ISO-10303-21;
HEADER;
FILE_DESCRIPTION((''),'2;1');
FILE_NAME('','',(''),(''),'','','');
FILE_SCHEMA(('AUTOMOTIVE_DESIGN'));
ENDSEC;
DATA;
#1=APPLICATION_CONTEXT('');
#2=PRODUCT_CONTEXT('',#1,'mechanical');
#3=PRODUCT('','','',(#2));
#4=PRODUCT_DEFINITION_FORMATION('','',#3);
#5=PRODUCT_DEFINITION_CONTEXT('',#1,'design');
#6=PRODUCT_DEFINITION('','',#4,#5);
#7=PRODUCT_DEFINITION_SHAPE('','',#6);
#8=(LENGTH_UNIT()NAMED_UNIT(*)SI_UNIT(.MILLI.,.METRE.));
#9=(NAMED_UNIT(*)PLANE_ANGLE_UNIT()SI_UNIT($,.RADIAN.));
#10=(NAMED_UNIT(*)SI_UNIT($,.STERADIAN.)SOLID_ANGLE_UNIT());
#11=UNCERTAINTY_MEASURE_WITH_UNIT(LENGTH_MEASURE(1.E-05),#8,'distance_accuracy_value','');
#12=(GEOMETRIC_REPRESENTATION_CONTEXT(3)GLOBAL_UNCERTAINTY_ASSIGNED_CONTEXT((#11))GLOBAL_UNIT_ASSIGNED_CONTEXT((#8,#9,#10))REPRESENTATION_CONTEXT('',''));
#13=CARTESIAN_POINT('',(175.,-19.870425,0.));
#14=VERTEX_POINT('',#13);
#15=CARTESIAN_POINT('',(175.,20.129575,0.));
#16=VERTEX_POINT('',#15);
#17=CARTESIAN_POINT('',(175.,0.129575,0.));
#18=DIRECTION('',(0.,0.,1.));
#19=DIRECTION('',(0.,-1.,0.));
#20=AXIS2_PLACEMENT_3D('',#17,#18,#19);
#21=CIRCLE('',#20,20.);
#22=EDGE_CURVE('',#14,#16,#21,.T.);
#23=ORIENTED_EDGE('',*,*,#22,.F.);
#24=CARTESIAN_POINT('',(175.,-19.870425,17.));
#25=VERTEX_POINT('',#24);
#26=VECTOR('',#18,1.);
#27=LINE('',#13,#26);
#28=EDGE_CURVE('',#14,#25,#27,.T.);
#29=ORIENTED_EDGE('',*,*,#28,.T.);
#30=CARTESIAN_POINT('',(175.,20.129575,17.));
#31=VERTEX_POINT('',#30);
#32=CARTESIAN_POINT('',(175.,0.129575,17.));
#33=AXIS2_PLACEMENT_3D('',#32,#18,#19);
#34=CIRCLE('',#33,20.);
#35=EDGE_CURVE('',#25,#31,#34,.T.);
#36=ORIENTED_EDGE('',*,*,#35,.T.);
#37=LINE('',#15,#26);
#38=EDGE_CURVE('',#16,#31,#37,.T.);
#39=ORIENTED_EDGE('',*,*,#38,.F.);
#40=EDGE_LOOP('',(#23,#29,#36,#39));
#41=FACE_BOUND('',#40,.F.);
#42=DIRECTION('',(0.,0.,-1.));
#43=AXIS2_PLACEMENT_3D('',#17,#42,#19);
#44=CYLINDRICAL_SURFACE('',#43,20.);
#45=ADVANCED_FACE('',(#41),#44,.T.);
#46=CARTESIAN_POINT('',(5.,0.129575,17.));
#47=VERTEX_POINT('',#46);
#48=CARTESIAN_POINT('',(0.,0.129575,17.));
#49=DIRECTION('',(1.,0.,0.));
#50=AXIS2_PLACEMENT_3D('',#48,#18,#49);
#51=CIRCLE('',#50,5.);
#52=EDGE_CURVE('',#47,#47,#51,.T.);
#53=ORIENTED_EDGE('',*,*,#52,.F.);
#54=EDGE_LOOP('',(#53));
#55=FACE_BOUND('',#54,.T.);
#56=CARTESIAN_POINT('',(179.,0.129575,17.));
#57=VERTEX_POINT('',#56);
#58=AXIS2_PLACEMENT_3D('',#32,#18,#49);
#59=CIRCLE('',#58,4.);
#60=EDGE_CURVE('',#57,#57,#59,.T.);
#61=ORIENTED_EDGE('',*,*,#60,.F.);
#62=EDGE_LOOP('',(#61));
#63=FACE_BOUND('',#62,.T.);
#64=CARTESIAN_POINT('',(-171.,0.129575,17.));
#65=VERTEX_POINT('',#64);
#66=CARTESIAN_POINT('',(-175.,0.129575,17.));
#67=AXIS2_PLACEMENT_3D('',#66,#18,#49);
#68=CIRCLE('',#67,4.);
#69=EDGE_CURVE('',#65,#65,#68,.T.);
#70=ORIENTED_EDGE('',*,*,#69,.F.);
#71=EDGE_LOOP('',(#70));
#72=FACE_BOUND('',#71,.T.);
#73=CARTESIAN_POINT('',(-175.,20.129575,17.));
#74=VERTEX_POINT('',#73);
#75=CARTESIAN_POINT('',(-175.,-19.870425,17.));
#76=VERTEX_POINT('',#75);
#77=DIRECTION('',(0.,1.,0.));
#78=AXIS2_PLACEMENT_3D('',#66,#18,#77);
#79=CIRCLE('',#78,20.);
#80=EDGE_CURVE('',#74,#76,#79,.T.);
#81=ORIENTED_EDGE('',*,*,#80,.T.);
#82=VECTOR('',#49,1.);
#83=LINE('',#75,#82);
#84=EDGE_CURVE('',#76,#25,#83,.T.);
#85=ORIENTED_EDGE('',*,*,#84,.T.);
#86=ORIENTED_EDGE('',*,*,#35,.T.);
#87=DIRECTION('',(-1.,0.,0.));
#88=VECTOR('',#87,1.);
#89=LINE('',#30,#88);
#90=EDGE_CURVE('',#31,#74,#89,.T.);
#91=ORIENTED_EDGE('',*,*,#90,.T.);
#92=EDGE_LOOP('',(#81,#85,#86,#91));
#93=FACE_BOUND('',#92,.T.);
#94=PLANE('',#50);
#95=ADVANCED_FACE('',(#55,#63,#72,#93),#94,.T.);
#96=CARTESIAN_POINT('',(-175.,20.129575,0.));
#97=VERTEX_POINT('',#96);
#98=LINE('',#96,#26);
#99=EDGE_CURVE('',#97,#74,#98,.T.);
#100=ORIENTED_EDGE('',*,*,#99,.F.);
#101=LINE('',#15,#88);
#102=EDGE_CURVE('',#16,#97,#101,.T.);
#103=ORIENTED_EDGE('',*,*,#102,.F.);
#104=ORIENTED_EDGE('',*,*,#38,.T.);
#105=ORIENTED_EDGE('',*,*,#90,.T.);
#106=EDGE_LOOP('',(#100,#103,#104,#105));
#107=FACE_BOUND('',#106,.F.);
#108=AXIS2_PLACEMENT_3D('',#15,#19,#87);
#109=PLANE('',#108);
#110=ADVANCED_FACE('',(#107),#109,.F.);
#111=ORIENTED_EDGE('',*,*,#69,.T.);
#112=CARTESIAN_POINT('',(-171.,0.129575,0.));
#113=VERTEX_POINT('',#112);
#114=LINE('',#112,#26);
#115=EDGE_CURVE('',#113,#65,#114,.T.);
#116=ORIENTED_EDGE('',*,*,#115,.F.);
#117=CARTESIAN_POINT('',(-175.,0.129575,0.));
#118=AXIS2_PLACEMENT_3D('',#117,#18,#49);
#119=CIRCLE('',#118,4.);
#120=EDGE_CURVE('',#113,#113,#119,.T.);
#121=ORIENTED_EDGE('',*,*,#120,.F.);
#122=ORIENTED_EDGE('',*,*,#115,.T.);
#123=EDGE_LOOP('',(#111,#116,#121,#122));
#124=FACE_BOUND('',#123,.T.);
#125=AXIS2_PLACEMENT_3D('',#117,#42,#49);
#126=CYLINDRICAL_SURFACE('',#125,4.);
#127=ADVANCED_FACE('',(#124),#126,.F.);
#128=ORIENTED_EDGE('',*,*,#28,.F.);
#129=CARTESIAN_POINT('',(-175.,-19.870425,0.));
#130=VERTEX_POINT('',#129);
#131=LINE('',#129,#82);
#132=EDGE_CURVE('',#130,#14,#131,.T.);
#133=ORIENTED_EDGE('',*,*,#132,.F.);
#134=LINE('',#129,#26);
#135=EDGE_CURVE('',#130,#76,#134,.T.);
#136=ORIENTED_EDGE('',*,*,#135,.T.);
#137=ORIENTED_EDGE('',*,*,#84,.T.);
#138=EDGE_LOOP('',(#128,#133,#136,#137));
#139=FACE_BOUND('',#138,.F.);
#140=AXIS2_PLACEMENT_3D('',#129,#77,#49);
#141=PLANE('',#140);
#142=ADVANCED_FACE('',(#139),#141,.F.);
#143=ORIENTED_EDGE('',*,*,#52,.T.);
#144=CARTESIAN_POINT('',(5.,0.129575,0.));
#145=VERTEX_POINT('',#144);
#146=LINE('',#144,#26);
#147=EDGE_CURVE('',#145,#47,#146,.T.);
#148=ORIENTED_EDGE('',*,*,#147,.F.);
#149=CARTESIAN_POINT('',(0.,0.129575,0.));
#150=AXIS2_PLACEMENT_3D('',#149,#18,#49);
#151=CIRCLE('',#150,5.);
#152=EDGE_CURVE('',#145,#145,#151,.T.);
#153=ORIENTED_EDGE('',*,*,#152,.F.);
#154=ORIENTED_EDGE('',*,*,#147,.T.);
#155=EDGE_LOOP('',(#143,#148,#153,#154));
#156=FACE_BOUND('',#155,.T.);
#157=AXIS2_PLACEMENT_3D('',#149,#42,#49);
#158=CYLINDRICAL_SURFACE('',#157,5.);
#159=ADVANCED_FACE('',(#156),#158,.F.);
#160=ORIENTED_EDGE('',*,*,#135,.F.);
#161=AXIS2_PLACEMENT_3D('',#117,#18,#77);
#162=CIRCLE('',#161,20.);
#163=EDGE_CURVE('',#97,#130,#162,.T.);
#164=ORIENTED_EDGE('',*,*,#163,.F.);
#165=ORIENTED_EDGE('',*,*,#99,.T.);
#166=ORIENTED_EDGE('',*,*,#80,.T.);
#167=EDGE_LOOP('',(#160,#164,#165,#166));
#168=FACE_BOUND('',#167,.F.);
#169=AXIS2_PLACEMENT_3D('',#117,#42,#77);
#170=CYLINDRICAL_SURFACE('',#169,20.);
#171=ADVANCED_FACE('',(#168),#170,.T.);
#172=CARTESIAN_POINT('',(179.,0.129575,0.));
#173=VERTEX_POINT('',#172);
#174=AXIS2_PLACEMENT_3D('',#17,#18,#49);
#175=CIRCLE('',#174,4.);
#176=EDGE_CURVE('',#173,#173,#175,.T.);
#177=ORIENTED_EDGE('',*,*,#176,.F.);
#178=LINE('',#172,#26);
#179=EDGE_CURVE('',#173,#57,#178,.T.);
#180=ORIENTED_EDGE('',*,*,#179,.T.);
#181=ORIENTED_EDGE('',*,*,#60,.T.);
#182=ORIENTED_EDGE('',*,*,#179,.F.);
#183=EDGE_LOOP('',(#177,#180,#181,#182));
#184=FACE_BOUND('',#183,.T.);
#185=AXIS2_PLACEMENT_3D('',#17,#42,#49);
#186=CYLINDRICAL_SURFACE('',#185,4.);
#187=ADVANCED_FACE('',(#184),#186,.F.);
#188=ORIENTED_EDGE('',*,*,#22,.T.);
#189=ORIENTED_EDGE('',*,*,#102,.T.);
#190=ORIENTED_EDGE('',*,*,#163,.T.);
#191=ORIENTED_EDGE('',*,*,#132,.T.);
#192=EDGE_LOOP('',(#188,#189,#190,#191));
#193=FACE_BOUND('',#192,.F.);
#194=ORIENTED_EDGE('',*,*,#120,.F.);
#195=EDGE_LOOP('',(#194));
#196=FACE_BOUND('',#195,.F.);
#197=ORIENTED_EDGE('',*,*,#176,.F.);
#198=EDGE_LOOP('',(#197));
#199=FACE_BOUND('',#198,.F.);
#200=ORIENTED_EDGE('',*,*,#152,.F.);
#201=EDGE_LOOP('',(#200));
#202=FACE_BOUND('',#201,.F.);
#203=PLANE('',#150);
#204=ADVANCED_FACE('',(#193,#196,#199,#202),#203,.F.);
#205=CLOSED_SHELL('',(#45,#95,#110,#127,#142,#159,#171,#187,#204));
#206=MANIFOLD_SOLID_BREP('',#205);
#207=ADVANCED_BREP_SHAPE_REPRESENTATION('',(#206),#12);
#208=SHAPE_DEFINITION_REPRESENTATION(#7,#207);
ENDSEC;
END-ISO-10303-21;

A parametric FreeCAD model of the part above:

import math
import FreeCAD as App
import Part
import Sketcher

V = App.Vector
Q = App.Units.Quantity

doc = App.newDocument("Part")
body = doc.addObject("PartDesign::Body", "Body")

# Sketch on XY plane
sketch1 = doc.addObject("Sketcher::SketchObject", "Sketch")
body.addObject(sketch1)
sketch1.AttachmentSupport = (doc.XY_Plane, [""])
sketch1.MapMode = "FlatFace"
sketch1.addGeometry([
    Part.ArcOfCircle(Part.Circle(V(175, 0.129575, 0), V(0, 0, 1), 20), math.radians(-90), math.radians(90)),  # 0
    Part.LineSegment(V(175, 20.129575, 0), V(-175, 20.129575, 0)),  # 1
    Part.ArcOfCircle(Part.Circle(V(-175, 0.129575, 0), V(0, 0, 1), 20), math.radians(90), math.radians(270)),  # 2
    Part.LineSegment(V(-175, -19.870425, 0), V(175, -19.870425, 0)),  # 3
    Part.Circle(V(-175, 0.129575, 0), V(0, 0, 1), 4),  # 4
    Part.Circle(V(0, 0.129575, 0), V(0, 0, 1), 5),  # 5
    Part.Circle(V(175, 0.129575, 0), V(0, 0, 1), 4),  # 6
], False)
sketch1.addConstraint([
    Sketcher.Constraint("Tangent", 0, 2, 1, 1),
    Sketcher.Constraint("Tangent", 1, 2, 2, 1),
    Sketcher.Constraint("Tangent", 2, 2, 3, 1),
    Sketcher.Constraint("Tangent", 3, 2, 0, 1),
    Sketcher.Constraint("Horizontal", 1),
    Sketcher.Constraint("Horizontal", 3),
    Sketcher.Constraint("Coincident", 4, 3, 2, 3),
    Sketcher.Constraint("Coincident", 6, 3, 0, 3),
    Sketcher.Constraint("Equal", 4, 6),
    Sketcher.Constraint("PointOnObject", 5, 3, -2),
    Sketcher.Constraint("Horizontal", 4, 3, 5, 3),
    Sketcher.Constraint("Diameter", 4, Q("8 mm")),
    Sketcher.Constraint("Diameter", 5, Q("10 mm")),
    Sketcher.Constraint("Radius", 0, Q("20 mm")),
    Sketcher.Constraint("DistanceX", 1, 2, 1, 1, Q("350 mm")),
    Sketcher.Constraint("DistanceX", -1, 1, 0, 3, Q("175 mm")),
    Sketcher.Constraint("DistanceY", -1, 1, 0, 3, Q("0.129575 mm")),
])
pad1 = doc.addObject("PartDesign::Pad", "Pad")
body.addObject(pad1)
pad1.Profile = sketch1
pad1.Length = 17

doc.recompute()
